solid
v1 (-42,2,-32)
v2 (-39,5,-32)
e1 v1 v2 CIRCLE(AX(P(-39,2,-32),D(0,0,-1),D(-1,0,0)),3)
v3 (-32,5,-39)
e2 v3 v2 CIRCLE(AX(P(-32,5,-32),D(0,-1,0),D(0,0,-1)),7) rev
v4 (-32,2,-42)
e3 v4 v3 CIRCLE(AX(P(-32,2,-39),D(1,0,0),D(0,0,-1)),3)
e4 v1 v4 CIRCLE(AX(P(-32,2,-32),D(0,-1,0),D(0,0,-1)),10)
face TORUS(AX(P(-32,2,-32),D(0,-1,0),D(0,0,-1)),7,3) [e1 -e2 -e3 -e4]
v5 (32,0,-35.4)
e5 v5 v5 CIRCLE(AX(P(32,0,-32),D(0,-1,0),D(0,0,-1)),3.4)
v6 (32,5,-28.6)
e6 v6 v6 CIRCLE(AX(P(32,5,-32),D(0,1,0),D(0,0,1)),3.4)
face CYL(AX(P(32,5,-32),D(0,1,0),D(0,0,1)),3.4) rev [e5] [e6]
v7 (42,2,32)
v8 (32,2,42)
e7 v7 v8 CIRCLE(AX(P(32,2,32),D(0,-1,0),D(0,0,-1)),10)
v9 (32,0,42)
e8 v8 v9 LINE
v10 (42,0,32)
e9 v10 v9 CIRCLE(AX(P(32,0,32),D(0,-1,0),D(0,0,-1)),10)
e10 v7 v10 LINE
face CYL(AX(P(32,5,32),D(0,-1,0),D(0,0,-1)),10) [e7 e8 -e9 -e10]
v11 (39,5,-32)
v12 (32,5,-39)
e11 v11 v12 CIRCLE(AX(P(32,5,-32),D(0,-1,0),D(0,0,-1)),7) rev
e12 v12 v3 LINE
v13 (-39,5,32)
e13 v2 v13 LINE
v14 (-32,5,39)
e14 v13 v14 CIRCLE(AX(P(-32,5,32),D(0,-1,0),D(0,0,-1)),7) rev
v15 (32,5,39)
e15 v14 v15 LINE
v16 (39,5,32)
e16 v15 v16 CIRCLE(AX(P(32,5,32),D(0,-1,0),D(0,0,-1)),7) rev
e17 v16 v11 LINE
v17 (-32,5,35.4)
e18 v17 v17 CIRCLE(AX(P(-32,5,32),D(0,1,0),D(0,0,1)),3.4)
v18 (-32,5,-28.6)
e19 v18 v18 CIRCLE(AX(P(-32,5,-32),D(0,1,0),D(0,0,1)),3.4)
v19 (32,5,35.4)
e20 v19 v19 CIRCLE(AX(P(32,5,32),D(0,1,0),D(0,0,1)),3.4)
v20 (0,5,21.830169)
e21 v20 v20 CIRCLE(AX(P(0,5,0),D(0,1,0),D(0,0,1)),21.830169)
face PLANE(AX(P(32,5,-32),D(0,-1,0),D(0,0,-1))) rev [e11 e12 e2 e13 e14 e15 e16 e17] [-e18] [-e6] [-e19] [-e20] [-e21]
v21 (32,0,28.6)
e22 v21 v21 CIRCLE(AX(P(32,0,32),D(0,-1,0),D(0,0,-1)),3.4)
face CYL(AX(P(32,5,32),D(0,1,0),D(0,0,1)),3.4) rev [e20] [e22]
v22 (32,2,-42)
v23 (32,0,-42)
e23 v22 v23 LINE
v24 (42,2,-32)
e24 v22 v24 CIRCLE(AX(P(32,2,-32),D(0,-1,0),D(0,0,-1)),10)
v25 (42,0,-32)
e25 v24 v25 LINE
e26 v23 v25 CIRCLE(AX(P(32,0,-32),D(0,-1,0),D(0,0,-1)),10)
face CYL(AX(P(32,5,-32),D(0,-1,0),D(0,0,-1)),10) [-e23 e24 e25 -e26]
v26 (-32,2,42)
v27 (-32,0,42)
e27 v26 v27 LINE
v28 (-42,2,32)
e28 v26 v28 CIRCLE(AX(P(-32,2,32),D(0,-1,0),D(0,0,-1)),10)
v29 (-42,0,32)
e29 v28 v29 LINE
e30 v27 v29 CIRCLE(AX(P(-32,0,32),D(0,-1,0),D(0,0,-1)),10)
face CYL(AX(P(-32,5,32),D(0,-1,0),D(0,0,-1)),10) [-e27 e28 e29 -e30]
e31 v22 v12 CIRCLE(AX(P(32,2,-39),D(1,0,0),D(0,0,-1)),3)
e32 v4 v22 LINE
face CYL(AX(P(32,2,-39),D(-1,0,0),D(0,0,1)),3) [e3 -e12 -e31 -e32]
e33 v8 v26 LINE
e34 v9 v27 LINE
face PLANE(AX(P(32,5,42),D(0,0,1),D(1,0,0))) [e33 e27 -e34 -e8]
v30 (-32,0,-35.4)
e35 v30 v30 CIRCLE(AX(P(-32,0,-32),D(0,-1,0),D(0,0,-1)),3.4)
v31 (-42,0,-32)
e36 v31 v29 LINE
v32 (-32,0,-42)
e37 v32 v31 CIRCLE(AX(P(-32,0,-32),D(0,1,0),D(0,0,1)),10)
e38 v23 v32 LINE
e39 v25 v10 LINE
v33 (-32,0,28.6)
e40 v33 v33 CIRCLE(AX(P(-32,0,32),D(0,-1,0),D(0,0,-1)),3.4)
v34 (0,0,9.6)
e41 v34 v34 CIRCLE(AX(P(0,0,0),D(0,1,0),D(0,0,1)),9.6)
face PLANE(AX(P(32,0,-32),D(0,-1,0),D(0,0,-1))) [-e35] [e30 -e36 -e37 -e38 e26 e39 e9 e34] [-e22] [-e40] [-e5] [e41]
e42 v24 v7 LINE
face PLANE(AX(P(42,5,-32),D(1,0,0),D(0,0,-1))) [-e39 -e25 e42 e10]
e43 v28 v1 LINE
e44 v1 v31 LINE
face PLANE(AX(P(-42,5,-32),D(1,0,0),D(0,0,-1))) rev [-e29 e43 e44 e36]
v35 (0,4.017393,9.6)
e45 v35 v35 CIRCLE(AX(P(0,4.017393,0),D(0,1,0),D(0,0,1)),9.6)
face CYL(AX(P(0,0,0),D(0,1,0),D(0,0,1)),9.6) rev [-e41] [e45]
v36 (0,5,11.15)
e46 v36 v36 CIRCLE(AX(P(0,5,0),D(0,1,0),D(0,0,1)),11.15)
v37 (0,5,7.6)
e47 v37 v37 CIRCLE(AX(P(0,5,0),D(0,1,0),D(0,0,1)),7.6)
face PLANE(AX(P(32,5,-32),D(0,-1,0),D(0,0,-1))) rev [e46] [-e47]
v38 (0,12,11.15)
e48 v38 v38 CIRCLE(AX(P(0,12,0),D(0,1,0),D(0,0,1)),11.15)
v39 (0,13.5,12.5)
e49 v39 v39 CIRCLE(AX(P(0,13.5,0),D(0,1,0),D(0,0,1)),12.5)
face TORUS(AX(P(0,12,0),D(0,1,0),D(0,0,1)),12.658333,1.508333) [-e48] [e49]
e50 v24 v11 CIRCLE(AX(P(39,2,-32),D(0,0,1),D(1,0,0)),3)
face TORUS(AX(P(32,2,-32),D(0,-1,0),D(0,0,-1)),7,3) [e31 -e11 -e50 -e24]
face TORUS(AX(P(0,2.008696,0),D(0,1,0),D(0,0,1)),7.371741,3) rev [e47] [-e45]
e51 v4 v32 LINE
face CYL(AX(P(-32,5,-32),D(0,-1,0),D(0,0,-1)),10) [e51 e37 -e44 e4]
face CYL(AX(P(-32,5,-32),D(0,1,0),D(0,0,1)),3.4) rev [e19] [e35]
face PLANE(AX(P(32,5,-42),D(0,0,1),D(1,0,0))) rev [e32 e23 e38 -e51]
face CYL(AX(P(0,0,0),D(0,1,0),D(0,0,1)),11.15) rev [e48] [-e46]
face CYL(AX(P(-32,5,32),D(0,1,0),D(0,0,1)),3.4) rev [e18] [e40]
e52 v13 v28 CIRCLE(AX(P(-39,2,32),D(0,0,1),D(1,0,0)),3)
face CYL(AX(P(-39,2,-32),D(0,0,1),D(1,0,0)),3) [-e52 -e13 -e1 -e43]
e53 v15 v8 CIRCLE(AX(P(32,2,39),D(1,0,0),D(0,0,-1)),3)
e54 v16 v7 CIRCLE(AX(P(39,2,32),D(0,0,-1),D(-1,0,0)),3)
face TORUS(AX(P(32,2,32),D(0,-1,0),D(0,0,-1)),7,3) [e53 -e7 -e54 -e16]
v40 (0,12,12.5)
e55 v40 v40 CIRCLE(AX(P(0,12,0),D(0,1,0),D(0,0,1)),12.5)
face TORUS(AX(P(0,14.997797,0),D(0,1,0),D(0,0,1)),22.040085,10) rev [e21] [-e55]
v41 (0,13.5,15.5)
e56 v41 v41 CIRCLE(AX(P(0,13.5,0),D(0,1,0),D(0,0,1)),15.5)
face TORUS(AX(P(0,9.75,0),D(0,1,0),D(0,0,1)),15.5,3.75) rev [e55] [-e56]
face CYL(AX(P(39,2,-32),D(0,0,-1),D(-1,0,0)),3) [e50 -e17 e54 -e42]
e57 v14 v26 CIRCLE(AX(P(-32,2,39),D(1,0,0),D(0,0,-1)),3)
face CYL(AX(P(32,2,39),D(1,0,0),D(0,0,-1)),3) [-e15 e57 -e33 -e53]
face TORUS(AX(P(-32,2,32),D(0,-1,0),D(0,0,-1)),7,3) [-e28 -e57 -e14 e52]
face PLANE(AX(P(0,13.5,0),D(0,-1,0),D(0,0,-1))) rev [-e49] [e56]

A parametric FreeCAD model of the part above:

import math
import FreeCAD as App
import Part
import Sketcher


def edges_at(feature, points):
    """Names of the edges that pass closest to the given points."""
    edges = feature.Shape.Edges
    near = lambda p: min(range(len(edges)), key=lambda i: edges[i].distToShape(Part.Vertex(*p))[0])
    return sorted({f"Edge{near(p) + 1}" for p in points})

doc = App.newDocument("Part")
body = doc.addObject("PartDesign::Body", "Body")

sketch1 = body.newObject("Sketcher::SketchObject", "Sketch")
sketch1.AttachmentSupport = (doc.getObject("XZ_Plane"), [""])
sketch1.MapMode = "FlatFace"
sketch1.addGeometry([
    Part.LineSegment(App.Vector(32, -42, 0), App.Vector(-32, -42, 0)),
    Part.ArcOfCircle(Part.Circle(App.Vector(-32, -32, 0), App.Vector(0, 0, 1), 10), math.radians(180), math.radians(270)),
    Part.LineSegment(App.Vector(-42, -32, 0), App.Vector(-42, 32, 0)),
    Part.ArcOfCircle(Part.Circle(App.Vector(-32, 32, 0), App.Vector(0, 0, 1), 10), math.radians(90), math.radians(180)),
    Part.LineSegment(App.Vector(-32, 42, 0), App.Vector(32, 42, 0)),
    Part.ArcOfCircle(Part.Circle(App.Vector(32, 32, 0), App.Vector(0, 0, 1), 10), math.radians(0), math.radians(90)),
    Part.LineSegment(App.Vector(42, 32, 0), App.Vector(42, -32, 0)),
    Part.ArcOfCircle(Part.Circle(App.Vector(32, -32, 0), App.Vector(0, 0, 1), 10), math.radians(-90), math.radians(0)),
], False)
sketch1.addConstraint([
    Sketcher.Constraint("Tangent", 0, 2, 1, 2),
    Sketcher.Constraint("Tangent", 1, 1, 2, 1),
    Sketcher.Constraint("Tangent", 2, 2, 3, 2),
    Sketcher.Constraint("Tangent", 3, 1, 4, 1),
    Sketcher.Constraint("Tangent", 4, 2, 5, 2),
    Sketcher.Constraint("Tangent", 5, 1, 6, 1),
    Sketcher.Constraint("Tangent", 6, 2, 7, 2),
    Sketcher.Constraint("Tangent", 7, 1, 0, 1),
    Sketcher.Constraint("Horizontal", 0),
    Sketcher.Constraint("Vertical", 2),
    Sketcher.Constraint("Horizontal", 4),
    Sketcher.Constraint("Vertical", 6),
    Sketcher.Constraint("Equal", 1, 3),
    Sketcher.Constraint("Equal", 3, 5),
    Sketcher.Constraint("Equal", 5, 7),
    Sketcher.Constraint("Symmetric", 1, 3, 5, 3, -1, 1),
    Sketcher.Constraint("Equal", 4, 2),
    Sketcher.Constraint("Radius", 1, 10.0),
    Sketcher.Constraint("DistanceX", 0, 2, 0, 1, 64.0),
])
pad1 = body.newObject("PartDesign::Pad", "Pad")
pad1.Profile = sketch1
pad1.Length = 5
pad1.Reversed = True

sketch2 = body.newObject("Sketcher::SketchObject", "Sketch001")
sketch2.AttachmentSupport = (doc.getObject("XY_Plane"), [""])
sketch2.MapMode = "FlatFace"
sketch2.addGeometry([
    Part.LineSegment(App.Vector(-21.830169, 5, 0), App.Vector(-11.15, 5, 0)),
    Part.LineSegment(App.Vector(-11.15, 5, 0), App.Vector(-11.15, 12, 0)),
    Part.ArcOfCircle(Part.Circle(App.Vector(-12.658333, 12, 0), App.Vector(0, 0, 1), 1.508333), math.radians(0), math.radians(83.974425)),
    Part.LineSegment(App.Vector(-12.5, 13.5, 0), App.Vector(-15.5, 13.5, 0)),
    Part.ArcOfCircle(Part.Circle(App.Vector(-15.5, 9.75, 0), App.Vector(0, 0, 1), 3.75), math.radians(36.869898), math.radians(90)),
    Part.ArcOfCircle(Part.Circle(App.Vector(-22.040085, 14.997797, 0), App.Vector(0, 0, 1), 10), math.radians(-88.797186), math.radians(-17.444369)),
], False)
sketch2.addConstraint([
    Sketcher.Constraint("Coincident", 0, 2, 1, 1),
    Sketcher.Constraint("Tangent", 1, 2, 2, 1),
    Sketcher.Constraint("Coincident", 2, 2, 3, 1),
    Sketcher.Constraint("Tangent", 3, 2, 4, 2),
    Sketcher.Constraint("Coincident", 4, 1, 5, 2),
    Sketcher.Constraint("Coincident", 5, 1, 0, 1),
    Sketcher.Constraint("Horizontal", 0),
    Sketcher.Constraint("Vertical", 1),
    Sketcher.Constraint("Horizontal", 3),
    Sketcher.Constraint("Horizontal", 1, 2, 4, 1),
    Sketcher.Constraint("Vertical", 2, 2, 4, 1),
    Sketcher.Constraint("Radius", 5, 10.0),
    Sketcher.Constraint("DistanceX", 3, 2, 3, 1, 3.0),
    Sketcher.Constraint("DistanceY", 1, 1, 1, 2, 7.0),
    Sketcher.Constraint("Radius", 4, 3.75),
    Sketcher.Constraint("DistanceY", -1, 1, 2, 3, 12.0),
    Sketcher.Constraint("DistanceX", 4, 3, -1, 1, 15.5),
    Sketcher.Constraint("DistanceX", 0, 2, -1, 1, 11.15),
    Sketcher.Constraint("DistanceX", 0, 1, 0, 2, 10.680169),
])
revolution = body.newObject("PartDesign::Revolution", "Revolution")
revolution.Profile = sketch2
revolution.ReferenceAxis = (sketch2, ["V_Axis"])
revolution.Angle = 360

sketch3 = body.newObject("Sketcher::SketchObject", "Sketch002")
sketch3.AttachmentSupport = (doc.getObject("XY_Plane"), [""])
sketch3.MapMode = "FlatFace"
sketch3.addGeometry([
    Part.LineSegment(App.Vector(0, 0, 0), App.Vector(0, 5, 0)),
    Part.LineSegment(App.Vector(0, 5, 0), App.Vector(-7.6, 5, 0)),
    Part.ArcOfCircle(Part.Circle(App.Vector(-7.371741, 2.008696, 0), App.Vector(0, 0, 1), 3), math.radians(94.363647), math.radians(137.966466)),
    Part.LineSegment(App.Vector(-9.6, 4.017393, 0), App.Vector(-9.6, 0, 0)),
    Part.LineSegment(App.Vector(-9.6, 0, 0), App.Vector(0, 0, 0)),
], False)
sketch3.addConstraint([
    Sketcher.Constraint("Coincident", 0, 2, 1, 1),
    Sketcher.Constraint("Coincident", 1, 2, 2, 1),
    Sketcher.Constraint("Coincident", 2, 2, 3, 1),
    Sketcher.Constraint("Coincident", 3, 2, 4, 1),
    Sketcher.Constraint("Coincident", 4, 2, 0, 1),
    Sketcher.Constraint("Vertical", 0),
    Sketcher.Constraint("Horizontal", 1),
    Sketcher.Constraint("Vertical", 3),
    Sketcher.Constraint("Horizontal", 4),
    Sketcher.Constraint("Coincident", 4, 2, -1, 1),
    Sketcher.Constraint("Radius", 2, 3.0),
    Sketcher.Constraint("DistanceY", 0, 1, 0, 2, 5.0),
    Sketcher.Constraint("DistanceX", 1, 2, 1, 1, 7.6),
    Sketcher.Constraint("DistanceX", 4, 1, 4, 2, 9.6),
    Sketcher.Constraint("DistanceY", 3, 2, 3, 1, 4.017393),
])
groove = body.newObject("PartDesign::Groove", "Groove")
groove.Profile = sketch3
groove.ReferenceAxis = (sketch3, ["V_Axis"])
groove.Angle = 360
doc.recompute()

fillet = body.newObject("PartDesign::Fillet", "Fillet")
fillet.Base = (groove, edges_at(groove, [
    (39.071, 5, 39.071),
    (0, 5, 42),
    (-39.071, 5, 39.071),
    (-42, 5, 0),
    (-39.071, 5, -39.071),
    (0, 5, -42),
    (39.071, 5, -39.071),
    (42, 5, 0),
]))
fillet.Radius = 3

sketch4 = body.newObject("Sketcher::SketchObject", "Sketch003")
sketch4.AttachmentSupport = (doc.getObject("XZ_Plane"), [""])
sketch4.MapMode = "FlatFace"
sketch4.AttachmentOffset = App.Placement(App.Vector(0, 0, -5), App.Rotation())
sketch4.addGeometry([
    Part.Circle(App.Vector(-32, -32, 0), App.Vector(0, 0, 1), 3.4),
    Part.Circle(App.Vector(-32, 32, 0), App.Vector(0, 0, 1), 3.4),
    Part.Circle(App.Vector(32, 32, 0), App.Vector(0, 0, 1), 3.4),
    Part.Circle(App.Vector(32, -32, 0), App.Vector(0, 0, 1), 3.4),
], False)
sketch4.addConstraint([
    Sketcher.Constraint("Equal", 0, 1),
    Sketcher.Constraint("Equal", 1, 2),
    Sketcher.Constraint("Equal", 2, 3),
    Sketcher.Constraint("Symmetric", 0, 3, 2, 3, -1, 1),
    Sketcher.Constraint("Symmetric", 1, 3, 3, 3, -1, 1),
    Sketcher.Constraint("Symmetric", 1, 3, 2, 3, -2),
    Sketcher.Constraint("Diameter", 0, 6.8),
    Sketcher.Constraint("DistanceX", 0, 3, -1, 1, 32.0),
    Sketcher.Constraint("DistanceY", 0, 3, -1, 1, 32.0),
])
doc.recompute()
hole = body.newObject("PartDesign::Hole", "Hole")
hole.Profile = sketch4
hole.ThreadType = "None"
hole.Diameter = 6.8
hole.DepthType = "Dimension"
hole.Depth = 8
hole.DrillPoint = "Angled"
hole.DrillPointAngle = 118
hole.Reversed = True

doc.recompute()
